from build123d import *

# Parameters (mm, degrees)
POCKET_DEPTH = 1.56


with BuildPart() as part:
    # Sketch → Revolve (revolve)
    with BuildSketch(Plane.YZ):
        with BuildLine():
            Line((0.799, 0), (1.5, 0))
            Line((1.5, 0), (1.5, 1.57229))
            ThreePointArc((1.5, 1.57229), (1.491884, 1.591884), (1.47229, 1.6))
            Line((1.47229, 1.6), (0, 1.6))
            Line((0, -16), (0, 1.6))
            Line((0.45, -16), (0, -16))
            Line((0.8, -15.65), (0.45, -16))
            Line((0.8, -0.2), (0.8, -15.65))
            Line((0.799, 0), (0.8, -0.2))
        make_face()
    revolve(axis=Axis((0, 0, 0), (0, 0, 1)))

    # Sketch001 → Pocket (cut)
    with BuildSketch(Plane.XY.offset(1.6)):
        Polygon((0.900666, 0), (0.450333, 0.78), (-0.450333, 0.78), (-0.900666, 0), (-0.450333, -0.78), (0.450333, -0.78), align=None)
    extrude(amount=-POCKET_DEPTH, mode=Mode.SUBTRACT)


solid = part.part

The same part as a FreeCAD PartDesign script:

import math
import FreeCAD as App
import Part
import Sketcher
from FreeCAD import Vector
Q = App.Units.Quantity

doc = App.newDocument("Part")
body = doc.addObject("PartDesign::Body", "Body")

# Sketch on YZ plane
sketch1 = body.newObject("Sketcher::SketchObject", "Sketch")
sketch1.AttachmentSupport = (doc.getObject("YZ_Plane"), [""])
sketch1.MapMode = "FlatFace"
sketch1.addGeometry(Part.LineSegment(Vector(0.799, 0, 0), Vector(1.5, 0, 0)), False)
sketch1.addGeometry(Part.LineSegment(Vector(1.5, 0, 0), Vector(1.5, 1.572, 0)), False)
sketch1.addGeometry(Part.ArcOfCircle(Part.Circle(Vector(1.472, 1.572, 0), Vector(0, 0, 1), 0.028), math.radians(0), math.radians(90)), False)
sketch1.addGeometry(Part.LineSegment(Vector(1.472, 1.6, 0), Vector(0, 1.6, 0)), False)
sketch1.addGeometry(Part.LineSegment(Vector(0, 1.6, 0), Vector(0, -16, 0)), False)
sketch1.addGeometry(Part.LineSegment(Vector(0, -16, 0), Vector(0.45, -16, 0)), False)
sketch1.addGeometry(Part.LineSegment(Vector(0.45, -16, 0), Vector(0.8, -15.65, 0)), False)
sketch1.addGeometry(Part.LineSegment(Vector(0.8, -15.65, 0), Vector(0.8, -0.2, 0)), False)
sketch1.addGeometry(Part.LineSegment(Vector(0.8, -0.2, 0), Vector(0.799, 0, 0)), False)
sketch1.addConstraint(Sketcher.Constraint("Coincident", 0, 2, 1, 1))
sketch1.addConstraint(Sketcher.Constraint("Coincident", 1, 2, 2, 1))
sketch1.addConstraint(Sketcher.Constraint("Coincident", 2, 2, 3, 1))
sketch1.addConstraint(Sketcher.Constraint("Coincident", 3, 2, 4, 1))
sketch1.addConstraint(Sketcher.Constraint("Coincident", 4, 2, 5, 1))
sketch1.addConstraint(Sketcher.Constraint("Coincident", 5, 2, 6, 1))
sketch1.addConstraint(Sketcher.Constraint("Coincident", 6, 2, 7, 1))
sketch1.addConstraint(Sketcher.Constraint("Coincident", 7, 2, 8, 1))
sketch1.addConstraint(Sketcher.Constraint("Coincident", 8, 2, 0, 1))
sketch1.addConstraint(Sketcher.Constraint("Horizontal", 0))
sketch1.addConstraint(Sketcher.Constraint("Vertical", 1))
sketch1.addConstraint(Sketcher.Constraint("Horizontal", 3))
sketch1.addConstraint(Sketcher.Constraint("Vertical", 4))
sketch1.addConstraint(Sketcher.Constraint("Horizontal", 5))
sketch1.addConstraint(Sketcher.Constraint("Vertical", 7))
sketch1.addConstraint(Sketcher.Constraint("PointOnObject", 0, 2, -1))
sketch1.addConstraint(Sketcher.Constraint("PointOnObject", 3, 2, -2))
sketch1.addConstraint(Sketcher.Constraint("Horizontal", 2, 3, 1, 2))
sketch1.addConstraint(Sketcher.Constraint("Angle", 6, Q("45 deg")))
sketch1.addConstraint(Sketcher.Constraint("DistanceY", 4, 2, 4, 1, Q("17.6 mm")))
sketch1.addConstraint(Sketcher.Constraint("DistanceY", 4, 2, -1, 1, Q("16 mm")))
sketch1.addConstraint(Sketcher.Constraint("DistanceX", 5, 1, 5, 2, Q("0.45 mm")))
sketch1.addConstraint(Sketcher.Constraint("DistanceY", 7, 1, 7, 2, Q("15.45 mm")))
sketch1.addConstraint(Sketcher.Constraint("DistanceX", -1, 1, 0, 2, Q("1.5 mm")))
sketch1.addConstraint(Sketcher.Constraint("DistanceX", -1, 1, 6, 2, Q("0.8 mm")))
sketch1.addConstraint(Sketcher.Constraint("DistanceX", 0, 1, 0, 2, Q("0.701 mm")))
sketch1.addConstraint(Sketcher.Constraint("Radius", 2, Q("0.02771 mm")))
sketch1.addConstraint(Sketcher.Constraint("DistanceX", 3, 2, 3, 1, Q("1.47229 mm")))
revolution = body.newObject("PartDesign::Revolution", "Revolution")
revolution.Profile = sketch1
revolution.ReferenceAxis = (sketch1, ["V_Axis"])
revolution.Angle = 360

# Sketch on XY plane
sketch2 = body.newObject("Sketcher::SketchObject", "Sketch001")
sketch2.AttachmentSupport = (doc.getObject("XY_Plane"), [""])
sketch2.MapMode = "FlatFace"
sketch2.AttachmentOffset = App.Placement(Vector(0, 0, 1.6), App.Rotation())
sketch2.addGeometry(Part.LineSegment(Vector(0.9, 0, 0), Vector(0.5, 0.8, 0)), False)
sketch2.addGeometry(Part.LineSegment(Vector(0.5, 0.8, 0), Vector(-0.5, 0.8, 0)), False)
sketch2.addGeometry(Part.LineSegment(Vector(-0.5, 0.8, 0), Vector(-0.9, 0, 0)), False)
sketch2.addGeometry(Part.LineSegment(Vector(-0.9, 0, 0), Vector(-0.5, -0.8, 0)), False)
sketch2.addGeometry(Part.LineSegment(Vector(-0.5, -0.8, 0), Vector(0.5, -0.8, 0)), False)
sketch2.addGeometry(Part.LineSegment(Vector(0.5, -0.8, 0), Vector(0.9, 0, 0)), False)
sketch2.addConstraint(Sketcher.Constraint("Coincident", 0, 2, 1, 1))
sketch2.addConstraint(Sketcher.Constraint("Coincident", 1, 2, 2, 1))
sketch2.addConstraint(Sketcher.Constraint("Coincident", 2, 2, 3, 1))
sketch2.addConstraint(Sketcher.Constraint("Coincident", 3, 2, 4, 1))
sketch2.addConstraint(Sketcher.Constraint("Coincident", 4, 2, 5, 1))
sketch2.addConstraint(Sketcher.Constraint("Coincident", 5, 2, 0, 1))
sketch2.addConstraint(Sketcher.Constraint("Horizontal", 1))
sketch2.addConstraint(Sketcher.Constraint("Horizontal", 4))
sketch2.addConstraint(Sketcher.Constraint("Symmetric", 0, 2, 3, 2, -1, 1))
sketch2.addConstraint(Sketcher.Constraint("Symmetric", 2, 2, 5, 2, -1, 1))
sketch2.addConstraint(Sketcher.Constraint("PointOnObject", 2, 2, -1))
sketch2.addConstraint(Sketcher.Constraint("Parallel", 2, 5))
sketch2.addConstraint(Sketcher.Constraint("Vertical", 1, 2, 3, 2))
sketch2.addConstraint(Sketcher.Constraint("Angle", 0, Q("119.999988 deg")))
sketch2.addConstraint(Sketcher.Constraint("DistanceY", -1, 1, 0, 2, Q("0.78 mm")))
sketch2.addConstraint(Sketcher.Constraint("DistanceX", 2, 2, 0, 2, Q("1.350999 mm")))
pocket1 = body.newObject("PartDesign::Pocket", "Pocket")
pocket1.Profile = sketch2
pocket1.Length = 1.56

doc.recompute()
